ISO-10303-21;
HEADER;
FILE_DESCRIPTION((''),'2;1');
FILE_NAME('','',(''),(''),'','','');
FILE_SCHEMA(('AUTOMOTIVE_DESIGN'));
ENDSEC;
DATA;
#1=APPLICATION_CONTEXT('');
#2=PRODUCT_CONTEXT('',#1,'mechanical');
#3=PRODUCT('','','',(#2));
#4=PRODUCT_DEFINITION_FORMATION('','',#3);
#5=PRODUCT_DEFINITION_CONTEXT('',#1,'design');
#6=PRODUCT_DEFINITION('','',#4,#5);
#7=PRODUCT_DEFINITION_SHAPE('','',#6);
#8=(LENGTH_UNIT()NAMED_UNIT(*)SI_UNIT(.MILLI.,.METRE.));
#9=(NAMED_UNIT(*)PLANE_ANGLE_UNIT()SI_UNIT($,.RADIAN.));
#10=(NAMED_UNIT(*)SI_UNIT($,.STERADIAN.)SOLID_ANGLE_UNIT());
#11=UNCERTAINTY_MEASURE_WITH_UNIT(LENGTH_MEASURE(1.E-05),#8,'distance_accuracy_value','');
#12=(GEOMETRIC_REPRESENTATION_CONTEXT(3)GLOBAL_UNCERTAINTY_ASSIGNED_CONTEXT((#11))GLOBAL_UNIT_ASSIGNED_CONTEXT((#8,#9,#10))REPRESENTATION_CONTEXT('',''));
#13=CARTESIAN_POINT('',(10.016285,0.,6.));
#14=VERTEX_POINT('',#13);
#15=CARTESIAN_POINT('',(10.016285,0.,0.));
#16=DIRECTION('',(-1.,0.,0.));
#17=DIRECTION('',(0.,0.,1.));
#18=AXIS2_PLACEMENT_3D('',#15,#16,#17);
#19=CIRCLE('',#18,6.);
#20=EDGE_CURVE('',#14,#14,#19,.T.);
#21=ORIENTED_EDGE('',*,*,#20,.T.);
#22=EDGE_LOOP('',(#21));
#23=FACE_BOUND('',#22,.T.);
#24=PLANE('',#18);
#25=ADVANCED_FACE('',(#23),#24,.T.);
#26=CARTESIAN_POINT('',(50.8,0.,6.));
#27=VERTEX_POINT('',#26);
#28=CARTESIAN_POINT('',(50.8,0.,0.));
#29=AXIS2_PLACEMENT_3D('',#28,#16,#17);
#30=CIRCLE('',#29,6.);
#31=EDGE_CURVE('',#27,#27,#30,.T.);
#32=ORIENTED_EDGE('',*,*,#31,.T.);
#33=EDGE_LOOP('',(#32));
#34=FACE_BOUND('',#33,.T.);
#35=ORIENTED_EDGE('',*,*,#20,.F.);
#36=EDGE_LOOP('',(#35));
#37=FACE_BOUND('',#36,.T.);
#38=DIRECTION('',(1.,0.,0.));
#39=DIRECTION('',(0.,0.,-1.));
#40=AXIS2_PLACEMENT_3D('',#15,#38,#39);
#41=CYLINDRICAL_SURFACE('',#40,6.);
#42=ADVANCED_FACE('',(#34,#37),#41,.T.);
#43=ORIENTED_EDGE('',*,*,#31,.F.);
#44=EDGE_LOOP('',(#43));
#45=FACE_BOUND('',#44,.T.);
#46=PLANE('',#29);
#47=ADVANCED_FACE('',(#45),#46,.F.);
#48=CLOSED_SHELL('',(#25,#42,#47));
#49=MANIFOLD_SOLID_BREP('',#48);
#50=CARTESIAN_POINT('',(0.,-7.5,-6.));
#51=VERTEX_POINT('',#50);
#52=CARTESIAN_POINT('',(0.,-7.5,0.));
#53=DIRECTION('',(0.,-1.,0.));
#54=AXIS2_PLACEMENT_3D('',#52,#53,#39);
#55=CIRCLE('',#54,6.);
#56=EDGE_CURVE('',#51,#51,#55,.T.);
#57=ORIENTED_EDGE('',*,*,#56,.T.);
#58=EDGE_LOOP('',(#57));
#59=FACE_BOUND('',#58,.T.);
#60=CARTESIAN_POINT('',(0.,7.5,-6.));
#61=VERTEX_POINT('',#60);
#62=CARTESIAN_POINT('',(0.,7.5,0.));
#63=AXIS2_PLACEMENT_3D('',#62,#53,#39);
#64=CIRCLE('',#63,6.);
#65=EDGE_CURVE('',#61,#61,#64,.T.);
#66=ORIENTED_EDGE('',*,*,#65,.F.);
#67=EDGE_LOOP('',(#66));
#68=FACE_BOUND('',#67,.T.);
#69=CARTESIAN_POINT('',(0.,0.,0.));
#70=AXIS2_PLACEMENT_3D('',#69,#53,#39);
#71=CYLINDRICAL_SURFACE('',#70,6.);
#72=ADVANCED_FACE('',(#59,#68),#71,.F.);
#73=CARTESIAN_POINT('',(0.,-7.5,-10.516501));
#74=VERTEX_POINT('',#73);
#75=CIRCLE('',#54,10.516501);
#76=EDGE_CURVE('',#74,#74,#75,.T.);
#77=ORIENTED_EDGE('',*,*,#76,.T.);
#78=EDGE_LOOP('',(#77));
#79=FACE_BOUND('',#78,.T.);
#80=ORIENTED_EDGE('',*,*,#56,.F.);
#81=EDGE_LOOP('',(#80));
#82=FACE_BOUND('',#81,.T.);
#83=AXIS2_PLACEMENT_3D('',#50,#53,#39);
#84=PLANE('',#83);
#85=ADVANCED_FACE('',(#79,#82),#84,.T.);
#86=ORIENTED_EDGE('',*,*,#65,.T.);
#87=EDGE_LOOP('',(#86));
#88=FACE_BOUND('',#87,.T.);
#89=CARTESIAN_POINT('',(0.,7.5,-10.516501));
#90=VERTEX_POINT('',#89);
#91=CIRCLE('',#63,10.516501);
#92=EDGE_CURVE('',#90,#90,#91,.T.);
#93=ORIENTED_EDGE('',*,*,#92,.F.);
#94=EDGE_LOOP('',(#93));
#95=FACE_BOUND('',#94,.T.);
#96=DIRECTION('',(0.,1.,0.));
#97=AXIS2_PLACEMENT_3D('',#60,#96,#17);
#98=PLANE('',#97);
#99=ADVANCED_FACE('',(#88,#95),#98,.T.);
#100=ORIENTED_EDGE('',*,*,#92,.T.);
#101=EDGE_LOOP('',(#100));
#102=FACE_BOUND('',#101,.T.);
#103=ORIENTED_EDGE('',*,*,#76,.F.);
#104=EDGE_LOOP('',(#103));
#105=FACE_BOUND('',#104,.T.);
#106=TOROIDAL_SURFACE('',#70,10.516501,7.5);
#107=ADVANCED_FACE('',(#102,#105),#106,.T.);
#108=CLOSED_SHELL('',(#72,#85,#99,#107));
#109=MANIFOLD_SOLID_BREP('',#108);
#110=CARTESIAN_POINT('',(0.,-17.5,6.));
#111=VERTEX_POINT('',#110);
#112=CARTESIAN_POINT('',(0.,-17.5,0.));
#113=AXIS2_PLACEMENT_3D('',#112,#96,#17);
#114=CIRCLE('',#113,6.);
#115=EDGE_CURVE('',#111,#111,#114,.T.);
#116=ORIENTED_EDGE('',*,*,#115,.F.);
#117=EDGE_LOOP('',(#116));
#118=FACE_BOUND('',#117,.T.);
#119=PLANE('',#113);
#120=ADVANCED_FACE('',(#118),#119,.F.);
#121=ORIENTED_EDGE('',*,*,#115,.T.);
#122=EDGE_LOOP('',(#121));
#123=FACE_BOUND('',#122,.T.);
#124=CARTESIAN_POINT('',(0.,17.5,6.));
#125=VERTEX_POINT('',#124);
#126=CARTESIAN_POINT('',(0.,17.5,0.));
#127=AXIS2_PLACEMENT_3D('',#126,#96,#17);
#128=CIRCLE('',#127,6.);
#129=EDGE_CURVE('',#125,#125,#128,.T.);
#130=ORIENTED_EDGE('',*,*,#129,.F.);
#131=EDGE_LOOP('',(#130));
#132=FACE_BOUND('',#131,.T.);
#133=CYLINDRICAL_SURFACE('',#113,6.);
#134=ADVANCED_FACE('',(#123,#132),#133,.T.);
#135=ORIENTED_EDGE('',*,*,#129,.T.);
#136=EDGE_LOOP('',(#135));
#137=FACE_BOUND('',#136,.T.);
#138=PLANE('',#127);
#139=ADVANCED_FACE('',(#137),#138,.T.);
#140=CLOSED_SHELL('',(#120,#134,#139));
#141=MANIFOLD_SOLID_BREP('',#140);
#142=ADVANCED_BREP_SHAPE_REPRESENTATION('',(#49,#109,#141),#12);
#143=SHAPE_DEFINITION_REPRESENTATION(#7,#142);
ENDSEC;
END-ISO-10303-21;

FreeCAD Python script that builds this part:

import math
import FreeCAD as App
import Part
import Sketcher
from FreeCAD import Vector

doc = App.newDocument("Part")
body = doc.addObject("PartDesign::Body", "Body")

# Sketch on YZ plane
sketch1 = body.newObject("Sketcher::SketchObject", "Sketch")
sketch1.AttachmentSupport = (doc.getObject("YZ_Plane"), [""])
sketch1.MapMode = "FlatFace"
sketch1.addGeometry([
    Part.LineSegment(Vector(7.5, -10.5, 0), Vector(7.5, -6, 0)),
    Part.LineSegment(Vector(7.5, -6, 0), Vector(-7.5, -6, 0)),
    Part.LineSegment(Vector(-7.5, -6, 0), Vector(-7.5, -10.5, 0)),
    Part.ArcOfCircle(Part.Circle(Vector(0, -10.5, 0), Vector(0, 0, 1), 7.5), math.radians(180), math.radians(360)),
], False)
sketch1.addConstraint([
    Sketcher.Constraint("Coincident", 0, 2, 1, 1),
    Sketcher.Constraint("Coincident", 1, 2, 2, 1),
    Sketcher.Constraint("Tangent", 2, 2, 3, 1),
    Sketcher.Constraint("Tangent", 3, 2, 0, 1),
    Sketcher.Constraint("Vertical", 0),
    Sketcher.Constraint("Horizontal", 1),
    Sketcher.Constraint("Vertical", 2),
    Sketcher.Constraint("PointOnObject", 3, 3, -2),
    Sketcher.Constraint("Radius", 3, 7.5),
    Sketcher.Constraint("DistanceY", 0, 2, -1, 1, 6.0),
    Sketcher.Constraint("DistanceY", 0, 1, 0, 2, 4.516501),
])
revolution = body.newObject("PartDesign::Revolution", "Revolution")
revolution.Profile = sketch1
revolution.ReferenceAxis = (sketch1, ["H_Axis"])
revolution.Angle = 360
body2 = doc.addObject("PartDesign::Body", "Body001")

# Sketch on YZ plane
sketch2 = body2.newObject("Sketcher::SketchObject", "Sketch001")
sketch2.AttachmentSupport = (doc.getObject("YZ_Plane001"), [""])
sketch2.MapMode = "FlatFace"
sketch2.AttachmentOffset = App.Placement(Vector(0, 0, 50.8), App.Rotation())
sketch2.addGeometry(Part.Circle(Vector(0, 0, 0), Vector(0, 0, 1), 6), False)
sketch2.addConstraint([
    Sketcher.Constraint("Coincident", 0, 3, -1, 1),
    Sketcher.Constraint("Diameter", 0, 12.0),
])
pad1 = body2.newObject("PartDesign::Pad", "Pad")
pad1.Profile = sketch2
pad1.Length = 40.783715
pad1.Reversed = True
body3 = doc.addObject("PartDesign::Body", "Body002")

# Sketch on XZ plane
sketch3 = body3.newObject("Sketcher::SketchObject", "Sketch002")
sketch3.AttachmentSupport = (doc.getObject("XZ_Plane002"), [""])
sketch3.MapMode = "FlatFace"
sketch3.AttachmentOffset = App.Placement(Vector(0, 0, -7.5), App.Rotation())
sketch3.addGeometry(Part.Circle(Vector(0, 0, 0), Vector(0, 0, 1), 6), False)
sketch3.addConstraint([
    Sketcher.Constraint("Coincident", 0, 3, -1, 1),
    Sketcher.Constraint("Diameter", 0, 12.0),
])
pad2 = body3.newObject("PartDesign::Pad", "Pad001")
pad2.Profile = sketch3
pad2.Type = "TwoLengths"
pad2.Length = 10
pad2.Length2 = 25
pad2.Reversed = True

doc.recompute()
